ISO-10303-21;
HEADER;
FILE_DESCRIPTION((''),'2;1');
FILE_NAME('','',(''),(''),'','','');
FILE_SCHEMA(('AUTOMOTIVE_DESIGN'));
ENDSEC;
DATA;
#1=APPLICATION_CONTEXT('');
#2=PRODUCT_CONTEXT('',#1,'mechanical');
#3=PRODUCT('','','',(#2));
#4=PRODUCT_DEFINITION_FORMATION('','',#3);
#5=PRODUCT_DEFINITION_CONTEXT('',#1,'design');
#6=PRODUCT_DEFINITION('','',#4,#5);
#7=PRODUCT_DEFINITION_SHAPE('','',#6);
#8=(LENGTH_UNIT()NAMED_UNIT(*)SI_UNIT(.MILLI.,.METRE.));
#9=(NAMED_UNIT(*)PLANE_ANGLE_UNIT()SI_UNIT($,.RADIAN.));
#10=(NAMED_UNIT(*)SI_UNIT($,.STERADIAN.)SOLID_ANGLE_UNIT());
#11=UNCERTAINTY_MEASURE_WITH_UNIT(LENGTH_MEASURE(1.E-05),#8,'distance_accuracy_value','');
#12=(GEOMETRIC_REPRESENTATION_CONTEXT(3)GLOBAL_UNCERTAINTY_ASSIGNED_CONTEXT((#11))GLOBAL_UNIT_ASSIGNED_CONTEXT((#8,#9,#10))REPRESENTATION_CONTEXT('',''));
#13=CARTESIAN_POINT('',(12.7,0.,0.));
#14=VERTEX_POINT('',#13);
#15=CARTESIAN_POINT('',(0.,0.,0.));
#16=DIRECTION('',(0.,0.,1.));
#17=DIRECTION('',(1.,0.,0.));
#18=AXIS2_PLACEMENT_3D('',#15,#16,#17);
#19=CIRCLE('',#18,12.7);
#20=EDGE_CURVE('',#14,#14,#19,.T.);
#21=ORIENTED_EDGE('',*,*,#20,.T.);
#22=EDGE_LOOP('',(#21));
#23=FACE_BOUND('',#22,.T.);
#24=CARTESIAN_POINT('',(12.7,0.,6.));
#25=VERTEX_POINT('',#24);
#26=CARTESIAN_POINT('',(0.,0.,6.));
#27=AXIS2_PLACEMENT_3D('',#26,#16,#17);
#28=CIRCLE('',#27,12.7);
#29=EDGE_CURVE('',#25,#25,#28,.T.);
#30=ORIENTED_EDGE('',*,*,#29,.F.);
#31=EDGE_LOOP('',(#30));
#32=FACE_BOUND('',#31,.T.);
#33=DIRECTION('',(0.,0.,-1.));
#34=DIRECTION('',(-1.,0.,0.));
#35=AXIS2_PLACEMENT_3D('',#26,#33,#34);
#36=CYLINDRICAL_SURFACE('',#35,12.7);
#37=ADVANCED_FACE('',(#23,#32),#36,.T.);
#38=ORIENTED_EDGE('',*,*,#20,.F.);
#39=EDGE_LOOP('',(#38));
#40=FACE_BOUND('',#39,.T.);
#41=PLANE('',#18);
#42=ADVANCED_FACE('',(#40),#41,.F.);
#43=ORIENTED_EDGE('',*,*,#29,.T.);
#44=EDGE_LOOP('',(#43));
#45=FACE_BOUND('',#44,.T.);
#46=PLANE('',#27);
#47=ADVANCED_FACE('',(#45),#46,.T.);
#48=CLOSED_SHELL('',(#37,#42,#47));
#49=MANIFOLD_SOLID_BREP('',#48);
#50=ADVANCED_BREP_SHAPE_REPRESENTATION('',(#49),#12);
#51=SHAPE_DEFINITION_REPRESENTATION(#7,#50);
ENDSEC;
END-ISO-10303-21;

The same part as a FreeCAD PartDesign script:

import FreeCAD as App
import Part
import Sketcher

doc = App.newDocument("Part")
body = doc.addObject("PartDesign::Body", "Body")

sketch1 = doc.addObject("Sketcher::SketchObject", "Sketch")
body.addObject(sketch1)
sketch1.AttachmentSupport = (doc.XY_Plane, [""])
sketch1.MapMode = "FlatFace"
sketch1.addGeometry(Part.Circle(App.Vector(0, 0, 0), App.Vector(0, 0, 1), 13), False)
sketch1.addConstraint(Sketcher.Constraint("Coincident", 0, 3, -1, 1))
sketch1.addConstraint(Sketcher.Constraint("Diameter", 0, 25.4))
pad1 = doc.addObject("PartDesign::Pad", "Pad")
body.addObject(pad1)
pad1.Profile = sketch1
pad1.Length = 6

doc.recompute()
